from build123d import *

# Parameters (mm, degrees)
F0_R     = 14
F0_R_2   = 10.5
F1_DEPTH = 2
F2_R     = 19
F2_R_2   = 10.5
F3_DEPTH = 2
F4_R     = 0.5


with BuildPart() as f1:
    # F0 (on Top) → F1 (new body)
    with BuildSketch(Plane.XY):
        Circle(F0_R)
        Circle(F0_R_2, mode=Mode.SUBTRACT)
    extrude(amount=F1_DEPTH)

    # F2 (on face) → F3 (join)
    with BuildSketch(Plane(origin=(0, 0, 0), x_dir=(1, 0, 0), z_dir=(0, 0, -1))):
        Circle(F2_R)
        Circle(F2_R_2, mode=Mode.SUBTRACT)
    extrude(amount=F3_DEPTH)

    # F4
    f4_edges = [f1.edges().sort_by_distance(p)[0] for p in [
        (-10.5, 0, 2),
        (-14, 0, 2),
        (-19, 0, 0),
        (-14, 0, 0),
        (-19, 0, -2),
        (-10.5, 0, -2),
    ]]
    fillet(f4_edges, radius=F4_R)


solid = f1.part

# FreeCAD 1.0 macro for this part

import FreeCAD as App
import Part
import Sketcher

V = App.Vector
Q = App.Units.Quantity


def edges_at(feature, points):
    """Names of the edges that pass closest to the given points."""
    edges = feature.Shape.Edges
    near = lambda p: min(range(len(edges)), key=lambda i: edges[i].distToShape(Part.Vertex(*p))[0])
    return sorted({f"Edge{near(p) + 1}" for p in points})

doc = App.newDocument("Part")
params = doc.addObject("Spreadsheet::Sheet", "Params")
for row, (alias, value) in enumerate([
    ("sketch1_diameter", "28 mm"),
    ("sketch1_diameter2", "21 mm"),
    ("pad1_length", "2 mm"),
    ("sketch2_diameter", "38 mm"),
    ("sketch2_diameter2", "21 mm"),
    ("pad2_length", "2 mm"),
    ("fillet_radius", "0.5 mm"),
], start=1):
    params.set(f"A{row}", alias)
    params.set(f"B{row}", "=" + value)
    params.setAlias(f"B{row}", alias)

body = doc.addObject("PartDesign::Body", "Body")

# Sketch on XY plane
sketch1 = body.newObject("Sketcher::SketchObject", "Sketch")
sketch1.AttachmentSupport = (doc.getObject("XY_Plane"), [""])
sketch1.MapMode = "FlatFace"
sketch1.addGeometry([
    Part.Circle(V(0, 0, 0), V(0, 0, 1), 14),
    Part.Circle(V(0, 0, 0), V(0, 0, 1), 10.5),
], False)
sketch1.addConstraint([
    Sketcher.Constraint("Coincident", 0, 3, -1, 1),
    Sketcher.Constraint("Coincident", 1, 3, -1, 1),
    Sketcher.Constraint("Diameter", 0, Q("28 mm")),
    Sketcher.Constraint("Diameter", 1, Q("21 mm")),
])
sketch1.setExpression("Constraints[2]", "Params.sketch1_diameter")
sketch1.setExpression("Constraints[3]", "Params.sketch1_diameter2")
pad1 = body.newObject("PartDesign::Pad", "Pad")
pad1.Profile = sketch1
pad1.setExpression("Length", "Params.pad1_length")

# Sketch on XY plane
sketch2 = body.newObject("Sketcher::SketchObject", "Sketch001")
sketch2.AttachmentSupport = (doc.getObject("XY_Plane"), [""])
sketch2.MapMode = "FlatFace"
sketch2.addGeometry([
    Part.Circle(V(0, 0, 0), V(0, 0, 1), 19),
    Part.Circle(V(0, 0, 0), V(0, 0, 1), 10.5),
], False)
sketch2.addConstraint([
    Sketcher.Constraint("Coincident", 0, 3, -1, 1),
    Sketcher.Constraint("Coincident", 1, 3, -1, 1),
    Sketcher.Constraint("Diameter", 0, Q("38 mm")),
    Sketcher.Constraint("Diameter", 1, Q("21 mm")),
])
sketch2.setExpression("Constraints[2]", "Params.sketch2_diameter")
sketch2.setExpression("Constraints[3]", "Params.sketch2_diameter2")
pad2 = body.newObject("PartDesign::Pad", "Pad001")
pad2.Profile = sketch2
pad2.setExpression("Length", "Params.pad2_length")
pad2.Reversed = True
doc.recompute()

fillet = body.newObject("PartDesign::Fillet", "Fillet")
fillet.Base = (pad2, edges_at(pad2, [
    (-10.5, 0, 2),
    (-14, 0, 2),
    (-19, 0, 0),
    (-14, 0, 0),
    (-19, 0, -2),
    (-10.5, 0, -2),
]))
fillet.setExpression("Radius", "Params.fillet_radius")

doc.recompute()
